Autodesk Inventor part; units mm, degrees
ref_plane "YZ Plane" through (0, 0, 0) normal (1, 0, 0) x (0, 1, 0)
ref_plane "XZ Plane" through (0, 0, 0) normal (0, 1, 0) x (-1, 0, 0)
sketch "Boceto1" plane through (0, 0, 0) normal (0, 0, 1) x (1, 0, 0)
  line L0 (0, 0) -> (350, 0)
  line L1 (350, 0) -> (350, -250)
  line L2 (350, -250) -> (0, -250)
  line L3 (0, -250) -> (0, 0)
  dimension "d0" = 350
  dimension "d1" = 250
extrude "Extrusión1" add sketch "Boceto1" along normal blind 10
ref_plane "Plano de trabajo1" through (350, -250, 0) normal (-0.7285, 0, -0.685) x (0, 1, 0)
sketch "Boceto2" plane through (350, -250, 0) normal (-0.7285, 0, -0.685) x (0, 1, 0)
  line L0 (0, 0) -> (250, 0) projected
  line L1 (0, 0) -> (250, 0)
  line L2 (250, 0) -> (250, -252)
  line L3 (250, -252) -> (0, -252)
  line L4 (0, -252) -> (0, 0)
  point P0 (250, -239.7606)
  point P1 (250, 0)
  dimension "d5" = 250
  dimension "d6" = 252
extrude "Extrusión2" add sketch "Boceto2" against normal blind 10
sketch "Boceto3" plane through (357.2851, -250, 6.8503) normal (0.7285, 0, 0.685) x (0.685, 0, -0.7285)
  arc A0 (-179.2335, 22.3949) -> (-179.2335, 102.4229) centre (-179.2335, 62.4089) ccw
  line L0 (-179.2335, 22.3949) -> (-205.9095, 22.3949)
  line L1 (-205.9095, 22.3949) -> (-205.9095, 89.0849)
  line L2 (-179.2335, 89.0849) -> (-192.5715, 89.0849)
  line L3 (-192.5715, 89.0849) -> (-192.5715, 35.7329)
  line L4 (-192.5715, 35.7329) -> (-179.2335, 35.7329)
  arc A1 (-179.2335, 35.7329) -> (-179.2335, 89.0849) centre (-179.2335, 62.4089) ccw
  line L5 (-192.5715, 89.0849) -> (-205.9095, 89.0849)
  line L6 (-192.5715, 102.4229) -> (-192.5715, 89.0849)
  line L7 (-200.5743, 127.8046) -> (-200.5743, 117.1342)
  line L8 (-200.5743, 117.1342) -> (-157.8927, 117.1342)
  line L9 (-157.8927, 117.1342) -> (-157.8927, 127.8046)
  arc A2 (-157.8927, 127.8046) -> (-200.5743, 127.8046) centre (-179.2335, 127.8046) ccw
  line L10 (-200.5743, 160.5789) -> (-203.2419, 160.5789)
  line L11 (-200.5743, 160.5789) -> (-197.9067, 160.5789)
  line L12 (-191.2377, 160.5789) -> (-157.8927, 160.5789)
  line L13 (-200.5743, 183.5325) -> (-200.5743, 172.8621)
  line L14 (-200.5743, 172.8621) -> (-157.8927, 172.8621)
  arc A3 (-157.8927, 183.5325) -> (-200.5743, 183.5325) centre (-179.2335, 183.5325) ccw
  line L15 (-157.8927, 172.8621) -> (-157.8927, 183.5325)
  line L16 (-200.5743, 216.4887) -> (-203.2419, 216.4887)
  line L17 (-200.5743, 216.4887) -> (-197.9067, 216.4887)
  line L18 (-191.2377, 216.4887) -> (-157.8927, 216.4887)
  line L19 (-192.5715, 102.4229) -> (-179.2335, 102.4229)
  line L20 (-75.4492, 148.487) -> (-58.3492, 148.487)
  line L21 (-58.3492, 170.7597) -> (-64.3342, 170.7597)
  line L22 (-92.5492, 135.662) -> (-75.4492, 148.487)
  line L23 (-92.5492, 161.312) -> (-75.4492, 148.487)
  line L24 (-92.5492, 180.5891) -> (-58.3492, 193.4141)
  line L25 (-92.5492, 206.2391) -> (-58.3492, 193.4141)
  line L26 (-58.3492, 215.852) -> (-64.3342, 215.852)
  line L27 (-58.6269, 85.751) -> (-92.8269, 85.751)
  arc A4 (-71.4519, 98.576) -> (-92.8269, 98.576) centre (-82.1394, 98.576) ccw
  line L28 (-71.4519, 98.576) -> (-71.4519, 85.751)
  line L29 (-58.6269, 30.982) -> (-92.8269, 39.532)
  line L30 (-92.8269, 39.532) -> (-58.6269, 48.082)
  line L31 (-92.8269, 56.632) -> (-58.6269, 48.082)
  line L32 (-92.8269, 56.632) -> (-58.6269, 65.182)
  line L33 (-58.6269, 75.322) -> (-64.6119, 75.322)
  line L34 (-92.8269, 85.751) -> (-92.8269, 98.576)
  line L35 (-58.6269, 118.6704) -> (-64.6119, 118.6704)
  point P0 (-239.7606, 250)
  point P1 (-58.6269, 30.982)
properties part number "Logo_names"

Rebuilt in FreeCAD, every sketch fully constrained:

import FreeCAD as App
import Part
import Sketcher
from FreeCAD import Vector

doc = App.newDocument("Part")
body = doc.addObject("PartDesign::Body", "Body")

# Sketch on XY plane
sketch1 = body.newObject("Sketcher::SketchObject", "Sketch")
sketch1.AttachmentSupport = (doc.getObject("XY_Plane"), [""])
sketch1.MapMode = "FlatFace"
sketch1.addGeometry([
    Part.LineSegment(Vector(350, 0, 0), Vector(0, 0, 0)),
    Part.LineSegment(Vector(0, 0, 0), Vector(0, -250, 0)),
    Part.LineSegment(Vector(0, -250, 0), Vector(350, -250, 0)),
    Part.LineSegment(Vector(350, -250, 0), Vector(350, 0, 0)),
], False)
sketch1.addConstraint([
    Sketcher.Constraint("Coincident", 0, 2, 1, 1),
    Sketcher.Constraint("Coincident", 1, 2, 2, 1),
    Sketcher.Constraint("Coincident", 2, 2, 3, 1),
    Sketcher.Constraint("Coincident", 3, 2, 0, 1),
    Sketcher.Constraint("Horizontal", 0),
    Sketcher.Constraint("Vertical", 1),
    Sketcher.Constraint("Horizontal", 2),
    Sketcher.Constraint("Vertical", 3),
    Sketcher.Constraint("Coincident", 0, 2, -1, 1),
    Sketcher.Constraint("DistanceX", 0, 2, 0, 1, 350.0),
    Sketcher.Constraint("DistanceY", 1, 2, 1, 1, 250.0),
])
pad1 = body.newObject("PartDesign::Pad", "Pad")
pad1.Profile = sketch1
pad1.Length = 10

# Sketch on an angled plane
sketch2 = body.newObject("Sketcher::SketchObject", "Sketch001")
sketch2.Placement = App.Placement(Vector(350, -250, 0), App.Rotation(Vector(0, 1, 0), Vector(0.685021493, 0, -0.728522858), Vector(-0.728522858, 0, -0.685021493), "ZXY"))
sketch2.addGeometry([
    Part.LineSegment(Vector(250, 0, 0), Vector(0, 0, 0)),
    Part.LineSegment(Vector(0, 0, 0), Vector(0, -252, 0)),
    Part.LineSegment(Vector(0, -252, 0), Vector(250, -252, 0)),
    Part.LineSegment(Vector(250, -252, 0), Vector(250, 0, 0)),
], False)
sketch2.addConstraint([
    Sketcher.Constraint("Coincident", 0, 2, 1, 1),
    Sketcher.Constraint("Coincident", 1, 2, 2, 1),
    Sketcher.Constraint("Coincident", 2, 2, 3, 1),
    Sketcher.Constraint("Coincident", 3, 2, 0, 1),
    Sketcher.Constraint("Horizontal", 0),
    Sketcher.Constraint("Vertical", 1),
    Sketcher.Constraint("Horizontal", 2),
    Sketcher.Constraint("Vertical", 3),
    Sketcher.Constraint("Coincident", 0, 2, -1, 1),
    Sketcher.Constraint("DistanceX", 0, 2, 0, 1, 250.0),
    Sketcher.Constraint("DistanceY", 1, 2, 1, 1, 252.0),
])
pad2 = body.newObject("PartDesign::Pad", "Pad001")
pad2.Profile = sketch2
pad2.Length = 10
pad2.Reversed = True

doc.recompute()
